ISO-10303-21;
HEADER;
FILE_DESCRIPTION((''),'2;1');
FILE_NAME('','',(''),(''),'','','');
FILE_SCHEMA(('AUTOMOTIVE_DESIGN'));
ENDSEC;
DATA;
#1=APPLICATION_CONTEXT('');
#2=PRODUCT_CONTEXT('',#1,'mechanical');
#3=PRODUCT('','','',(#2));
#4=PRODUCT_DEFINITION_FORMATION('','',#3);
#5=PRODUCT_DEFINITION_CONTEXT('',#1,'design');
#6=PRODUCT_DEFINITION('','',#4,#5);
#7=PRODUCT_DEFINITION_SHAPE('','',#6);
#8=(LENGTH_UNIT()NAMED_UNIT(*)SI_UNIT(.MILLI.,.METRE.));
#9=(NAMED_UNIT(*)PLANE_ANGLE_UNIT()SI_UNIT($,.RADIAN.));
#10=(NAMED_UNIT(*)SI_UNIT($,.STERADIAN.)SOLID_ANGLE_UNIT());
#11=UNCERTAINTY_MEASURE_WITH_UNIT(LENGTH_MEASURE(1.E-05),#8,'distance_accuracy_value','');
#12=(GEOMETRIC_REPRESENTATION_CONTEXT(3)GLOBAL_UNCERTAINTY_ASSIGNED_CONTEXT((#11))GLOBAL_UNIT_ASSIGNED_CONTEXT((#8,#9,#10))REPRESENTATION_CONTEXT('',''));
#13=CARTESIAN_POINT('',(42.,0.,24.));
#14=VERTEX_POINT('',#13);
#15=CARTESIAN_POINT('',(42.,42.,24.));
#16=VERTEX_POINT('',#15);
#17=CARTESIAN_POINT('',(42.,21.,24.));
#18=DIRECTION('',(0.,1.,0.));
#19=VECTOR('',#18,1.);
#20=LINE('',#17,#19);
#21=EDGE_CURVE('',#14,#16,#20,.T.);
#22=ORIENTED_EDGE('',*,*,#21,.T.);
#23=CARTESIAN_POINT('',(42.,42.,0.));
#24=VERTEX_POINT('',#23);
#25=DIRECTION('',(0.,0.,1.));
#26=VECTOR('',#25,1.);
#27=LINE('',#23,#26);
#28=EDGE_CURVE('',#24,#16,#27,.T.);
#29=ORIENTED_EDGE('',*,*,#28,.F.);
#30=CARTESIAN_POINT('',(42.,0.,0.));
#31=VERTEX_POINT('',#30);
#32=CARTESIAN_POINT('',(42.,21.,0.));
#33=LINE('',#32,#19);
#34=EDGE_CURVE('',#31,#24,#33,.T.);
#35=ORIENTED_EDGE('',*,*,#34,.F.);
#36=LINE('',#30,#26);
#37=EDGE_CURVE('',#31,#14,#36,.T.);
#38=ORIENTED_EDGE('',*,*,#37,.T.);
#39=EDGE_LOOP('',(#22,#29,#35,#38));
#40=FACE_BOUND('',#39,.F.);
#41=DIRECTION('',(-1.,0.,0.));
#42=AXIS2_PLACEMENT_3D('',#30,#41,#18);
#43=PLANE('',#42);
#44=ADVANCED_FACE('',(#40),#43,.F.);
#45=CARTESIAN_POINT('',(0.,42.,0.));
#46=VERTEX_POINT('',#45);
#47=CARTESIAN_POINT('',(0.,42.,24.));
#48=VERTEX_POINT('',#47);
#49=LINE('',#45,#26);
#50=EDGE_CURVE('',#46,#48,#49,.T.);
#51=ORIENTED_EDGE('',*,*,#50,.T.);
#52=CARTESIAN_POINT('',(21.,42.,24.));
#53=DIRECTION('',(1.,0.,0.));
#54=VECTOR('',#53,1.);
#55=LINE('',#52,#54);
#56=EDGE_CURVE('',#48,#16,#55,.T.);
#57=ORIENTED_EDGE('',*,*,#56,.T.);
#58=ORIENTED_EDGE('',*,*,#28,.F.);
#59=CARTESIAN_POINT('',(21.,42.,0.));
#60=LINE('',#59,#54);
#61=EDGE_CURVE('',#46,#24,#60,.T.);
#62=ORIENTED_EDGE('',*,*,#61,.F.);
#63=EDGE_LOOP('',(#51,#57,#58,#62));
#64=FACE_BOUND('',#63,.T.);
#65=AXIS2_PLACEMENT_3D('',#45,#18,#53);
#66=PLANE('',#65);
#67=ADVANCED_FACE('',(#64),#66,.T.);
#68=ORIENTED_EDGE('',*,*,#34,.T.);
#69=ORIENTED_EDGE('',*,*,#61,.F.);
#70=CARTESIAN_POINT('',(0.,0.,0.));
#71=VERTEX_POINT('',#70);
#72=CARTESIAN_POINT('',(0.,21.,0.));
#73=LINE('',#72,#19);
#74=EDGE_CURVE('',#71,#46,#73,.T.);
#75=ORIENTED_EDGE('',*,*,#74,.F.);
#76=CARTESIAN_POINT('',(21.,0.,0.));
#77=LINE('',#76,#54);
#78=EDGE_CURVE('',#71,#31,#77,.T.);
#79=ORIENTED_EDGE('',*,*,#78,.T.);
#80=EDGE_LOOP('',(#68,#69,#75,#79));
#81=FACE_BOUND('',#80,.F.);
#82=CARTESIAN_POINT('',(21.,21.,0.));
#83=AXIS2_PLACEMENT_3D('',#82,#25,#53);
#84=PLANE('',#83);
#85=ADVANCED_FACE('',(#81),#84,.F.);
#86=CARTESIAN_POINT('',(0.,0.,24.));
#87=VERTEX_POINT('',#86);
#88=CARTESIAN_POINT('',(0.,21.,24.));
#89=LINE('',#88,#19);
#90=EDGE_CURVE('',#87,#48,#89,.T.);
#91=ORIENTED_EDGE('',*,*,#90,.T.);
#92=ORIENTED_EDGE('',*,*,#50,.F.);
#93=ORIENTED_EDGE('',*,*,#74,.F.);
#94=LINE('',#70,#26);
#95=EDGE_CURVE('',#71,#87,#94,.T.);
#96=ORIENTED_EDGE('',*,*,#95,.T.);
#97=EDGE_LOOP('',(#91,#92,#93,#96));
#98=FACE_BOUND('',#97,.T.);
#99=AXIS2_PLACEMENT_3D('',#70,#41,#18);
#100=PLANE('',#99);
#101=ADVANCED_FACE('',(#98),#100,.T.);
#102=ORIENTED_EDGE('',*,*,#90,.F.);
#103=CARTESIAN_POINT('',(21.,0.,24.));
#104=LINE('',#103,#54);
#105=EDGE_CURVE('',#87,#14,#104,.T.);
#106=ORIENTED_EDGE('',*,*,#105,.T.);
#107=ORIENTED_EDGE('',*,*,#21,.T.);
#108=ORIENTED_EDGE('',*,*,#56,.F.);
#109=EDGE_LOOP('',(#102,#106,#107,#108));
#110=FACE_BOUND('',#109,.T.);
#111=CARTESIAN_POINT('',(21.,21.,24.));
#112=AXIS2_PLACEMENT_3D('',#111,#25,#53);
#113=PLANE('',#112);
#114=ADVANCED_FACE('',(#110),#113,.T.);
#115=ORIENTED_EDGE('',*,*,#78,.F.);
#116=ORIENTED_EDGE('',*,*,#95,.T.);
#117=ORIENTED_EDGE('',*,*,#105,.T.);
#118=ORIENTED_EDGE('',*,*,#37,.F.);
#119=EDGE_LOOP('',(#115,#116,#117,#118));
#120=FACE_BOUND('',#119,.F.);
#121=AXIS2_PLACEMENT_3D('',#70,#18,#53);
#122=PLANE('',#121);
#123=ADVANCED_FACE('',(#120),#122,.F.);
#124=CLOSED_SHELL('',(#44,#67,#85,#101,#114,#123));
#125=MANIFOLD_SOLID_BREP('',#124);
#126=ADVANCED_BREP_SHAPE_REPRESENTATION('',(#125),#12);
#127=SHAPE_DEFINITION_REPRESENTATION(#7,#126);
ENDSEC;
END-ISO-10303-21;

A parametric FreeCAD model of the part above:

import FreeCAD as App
import Part
import Sketcher
from FreeCAD import Vector

doc = App.newDocument("Part")
body = doc.addObject("PartDesign::Body", "Body")

sketch1 = doc.addObject("Sketcher::SketchObject", "Sketch")
body.addObject(sketch1)
sketch1.AttachmentSupport = (doc.XY_Plane, [""])
sketch1.MapMode = "FlatFace"
sketch1.addGeometry(Part.LineSegment(Vector(0, 42, 0), Vector(0, 0, 0)), False)
sketch1.addGeometry(Part.LineSegment(Vector(0, 0, 0), Vector(42, 0, 0)), False)
sketch1.addGeometry(Part.LineSegment(Vector(42, 0, 0), Vector(42, 42, 0)), False)
sketch1.addGeometry(Part.LineSegment(Vector(42, 42, 0), Vector(0, 42, 0)), False)
sketch1.addConstraint(Sketcher.Constraint("Coincident", 0, 2, 1, 1))
sketch1.addConstraint(Sketcher.Constraint("Coincident", 1, 2, 2, 1))
sketch1.addConstraint(Sketcher.Constraint("Coincident", 2, 2, 3, 1))
sketch1.addConstraint(Sketcher.Constraint("Coincident", 3, 2, 0, 1))
sketch1.addConstraint(Sketcher.Constraint("Vertical", 0))
sketch1.addConstraint(Sketcher.Constraint("Horizontal", 1))
sketch1.addConstraint(Sketcher.Constraint("Vertical", 2))
sketch1.addConstraint(Sketcher.Constraint("Horizontal", 3))
sketch1.addConstraint(Sketcher.Constraint("Coincident", 0, 2, -1, 1))
sketch1.addConstraint(Sketcher.Constraint("Equal", 3, 0))
sketch1.addConstraint(Sketcher.Constraint("DistanceX", 1, 1, 1, 2, 42.0))
pad1 = doc.addObject("PartDesign::Pad", "Pad")
body.addObject(pad1)
pad1.Profile = sketch1
pad1.Length = 24

doc.recompute()
